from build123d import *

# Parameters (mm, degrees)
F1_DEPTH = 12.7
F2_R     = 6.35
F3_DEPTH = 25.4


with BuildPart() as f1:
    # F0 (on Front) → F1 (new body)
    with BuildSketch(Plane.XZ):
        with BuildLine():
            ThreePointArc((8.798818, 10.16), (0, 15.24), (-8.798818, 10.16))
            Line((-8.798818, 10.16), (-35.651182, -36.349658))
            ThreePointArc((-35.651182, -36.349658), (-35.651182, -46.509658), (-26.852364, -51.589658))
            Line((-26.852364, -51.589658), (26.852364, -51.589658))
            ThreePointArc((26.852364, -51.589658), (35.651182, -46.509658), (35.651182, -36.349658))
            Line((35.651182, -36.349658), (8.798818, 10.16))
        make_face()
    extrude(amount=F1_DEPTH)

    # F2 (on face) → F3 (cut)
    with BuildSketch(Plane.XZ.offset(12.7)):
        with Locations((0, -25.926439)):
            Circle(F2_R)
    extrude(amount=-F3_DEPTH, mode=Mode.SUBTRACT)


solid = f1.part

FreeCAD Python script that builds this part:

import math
import FreeCAD as App
import Part
import Sketcher

V = App.Vector
Q = App.Units.Quantity

doc = App.newDocument("Part")
body = doc.addObject("PartDesign::Body", "Body")

sketch1 = body.newObject("Sketcher::SketchObject", "Sketch")
sketch1.AttachmentSupport = (doc.getObject("XZ_Plane"), [""])
sketch1.MapMode = "FlatFace"
sketch1.addGeometry([
    Part.ArcOfCircle(Part.Circle(V(0, 5, 0), V(0, 0, 1), 10), math.radians(30), math.radians(150)),
    Part.LineSegment(V(-9, 10, 0), V(-36, -36, 0)),
    Part.ArcOfCircle(Part.Circle(V(-27, -41, 0), V(0, 0, 1), 10), math.radians(150), math.radians(270)),
    Part.LineSegment(V(-27, -52, 0), V(27, -52, 0)),
    Part.ArcOfCircle(Part.Circle(V(27, -41, 0), V(0, 0, 1), 10), math.radians(-90), math.radians(30)),
    Part.LineSegment(V(36, -36, 0), V(9, 10, 0)),
], False)
sketch1.addConstraint([
    Sketcher.Constraint("Tangent", 0, 2, 1, 1),
    Sketcher.Constraint("Tangent", 1, 2, 2, 1),
    Sketcher.Constraint("Tangent", 2, 2, 3, 1),
    Sketcher.Constraint("Tangent", 3, 2, 4, 1),
    Sketcher.Constraint("Tangent", 4, 2, 5, 1),
    Sketcher.Constraint("Tangent", 5, 2, 0, 1),
    Sketcher.Constraint("Horizontal", 3),
    Sketcher.Constraint("Equal", 0, 2),
    Sketcher.Constraint("Equal", 2, 4),
    Sketcher.Constraint("Symmetric", 1, 2, 4, 2, -2),
    Sketcher.Constraint("Radius", 0, Q("0.4 in")),
    Sketcher.Constraint("Angle", 1, Q("-120 deg")),
    Sketcher.Constraint("DistanceY", -1, 1, 0, 3, Q("0.2 in")),
    Sketcher.Constraint("DistanceX", 0, 2, 4, 2, Q("1.75 in")),
])
pad1 = body.newObject("PartDesign::Pad", "Pad")
pad1.Profile = sketch1
pad1.Length = Q("0.5 in")

sketch2 = body.newObject("Sketcher::SketchObject", "Sketch001")
sketch2.AttachmentSupport = (doc.getObject("XZ_Plane"), [""])
sketch2.MapMode = "FlatFace"
sketch2.AttachmentOffset = App.Placement(V(0, 0, 0.5 * 25.4), App.Rotation())
sketch2.addGeometry(Part.Circle(V(0, -26, 0), V(0, 0, 1), 6), False)
sketch2.addConstraint([
    Sketcher.Constraint("PointOnObject", 0, 3, -2),
    Sketcher.Constraint("Diameter", 0, Q("0.5 in")),
    Sketcher.Constraint("DistanceY", 0, 3, -1, 1, Q("25.926439 mm")),
])
pocket1 = body.newObject("PartDesign::Pocket", "Pocket")
pocket1.Profile = sketch2
pocket1.Length = Q("1 in")

doc.recompute()
